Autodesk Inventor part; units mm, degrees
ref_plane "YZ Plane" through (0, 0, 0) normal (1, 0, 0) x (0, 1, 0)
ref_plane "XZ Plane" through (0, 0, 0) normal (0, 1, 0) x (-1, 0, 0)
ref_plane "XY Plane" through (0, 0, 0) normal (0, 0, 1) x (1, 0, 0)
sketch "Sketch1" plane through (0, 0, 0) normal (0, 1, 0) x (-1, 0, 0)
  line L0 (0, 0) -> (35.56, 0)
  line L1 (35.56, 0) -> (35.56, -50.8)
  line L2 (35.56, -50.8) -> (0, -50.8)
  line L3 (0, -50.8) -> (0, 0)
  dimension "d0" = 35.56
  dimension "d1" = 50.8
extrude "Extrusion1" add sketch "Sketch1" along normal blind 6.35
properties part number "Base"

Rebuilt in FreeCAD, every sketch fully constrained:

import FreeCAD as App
import Part
import Sketcher
Q = App.Units.Quantity


def add_polygon(sketch, points):
    """Adds a closed chain of lines whose ends are joined by coincident constraints."""
    first, n = sketch.GeometryCount, len(points)
    for a, b in zip(points, points[1:] + points[:1]):
        sketch.addGeometry(Part.LineSegment(App.Vector(*a, 0), App.Vector(*b, 0)), False)
    for i in range(n):
        sketch.addConstraint(Sketcher.Constraint("Coincident", first + i, 2, first + (i + 1) % n, 1))

doc = App.newDocument("Part")
body = doc.addObject("PartDesign::Body", "Body")

sketch1 = doc.addObject("Sketcher::SketchObject", "Sketch")
body.addObject(sketch1)
sketch1.AttachmentSupport = (doc.XZ_Plane, [""])
sketch1.MapMode = "FlatFace"
add_polygon(sketch1, [(-35.56, 0), (0, 0), (0, -50.8), (-35.56, -50.8)])
sketch1.addConstraint([
    Sketcher.Constraint("Horizontal", 0),
    Sketcher.Constraint("Vertical", 1),
    Sketcher.Constraint("Horizontal", 2),
    Sketcher.Constraint("Vertical", 3),
    Sketcher.Constraint("Coincident", 0, 2, -1, 1),
    Sketcher.Constraint("DistanceY", 1, 2, 1, 1, Q("2 in")),
    Sketcher.Constraint("DistanceX", 0, 1, 0, 2, Q("1.4 in")),
])
pad1 = doc.addObject("PartDesign::Pad", "Pad")
body.addObject(pad1)
pad1.Profile = sketch1
pad1.Length = Q("0.25 in")
pad1.Reversed = True

doc.recompute()
